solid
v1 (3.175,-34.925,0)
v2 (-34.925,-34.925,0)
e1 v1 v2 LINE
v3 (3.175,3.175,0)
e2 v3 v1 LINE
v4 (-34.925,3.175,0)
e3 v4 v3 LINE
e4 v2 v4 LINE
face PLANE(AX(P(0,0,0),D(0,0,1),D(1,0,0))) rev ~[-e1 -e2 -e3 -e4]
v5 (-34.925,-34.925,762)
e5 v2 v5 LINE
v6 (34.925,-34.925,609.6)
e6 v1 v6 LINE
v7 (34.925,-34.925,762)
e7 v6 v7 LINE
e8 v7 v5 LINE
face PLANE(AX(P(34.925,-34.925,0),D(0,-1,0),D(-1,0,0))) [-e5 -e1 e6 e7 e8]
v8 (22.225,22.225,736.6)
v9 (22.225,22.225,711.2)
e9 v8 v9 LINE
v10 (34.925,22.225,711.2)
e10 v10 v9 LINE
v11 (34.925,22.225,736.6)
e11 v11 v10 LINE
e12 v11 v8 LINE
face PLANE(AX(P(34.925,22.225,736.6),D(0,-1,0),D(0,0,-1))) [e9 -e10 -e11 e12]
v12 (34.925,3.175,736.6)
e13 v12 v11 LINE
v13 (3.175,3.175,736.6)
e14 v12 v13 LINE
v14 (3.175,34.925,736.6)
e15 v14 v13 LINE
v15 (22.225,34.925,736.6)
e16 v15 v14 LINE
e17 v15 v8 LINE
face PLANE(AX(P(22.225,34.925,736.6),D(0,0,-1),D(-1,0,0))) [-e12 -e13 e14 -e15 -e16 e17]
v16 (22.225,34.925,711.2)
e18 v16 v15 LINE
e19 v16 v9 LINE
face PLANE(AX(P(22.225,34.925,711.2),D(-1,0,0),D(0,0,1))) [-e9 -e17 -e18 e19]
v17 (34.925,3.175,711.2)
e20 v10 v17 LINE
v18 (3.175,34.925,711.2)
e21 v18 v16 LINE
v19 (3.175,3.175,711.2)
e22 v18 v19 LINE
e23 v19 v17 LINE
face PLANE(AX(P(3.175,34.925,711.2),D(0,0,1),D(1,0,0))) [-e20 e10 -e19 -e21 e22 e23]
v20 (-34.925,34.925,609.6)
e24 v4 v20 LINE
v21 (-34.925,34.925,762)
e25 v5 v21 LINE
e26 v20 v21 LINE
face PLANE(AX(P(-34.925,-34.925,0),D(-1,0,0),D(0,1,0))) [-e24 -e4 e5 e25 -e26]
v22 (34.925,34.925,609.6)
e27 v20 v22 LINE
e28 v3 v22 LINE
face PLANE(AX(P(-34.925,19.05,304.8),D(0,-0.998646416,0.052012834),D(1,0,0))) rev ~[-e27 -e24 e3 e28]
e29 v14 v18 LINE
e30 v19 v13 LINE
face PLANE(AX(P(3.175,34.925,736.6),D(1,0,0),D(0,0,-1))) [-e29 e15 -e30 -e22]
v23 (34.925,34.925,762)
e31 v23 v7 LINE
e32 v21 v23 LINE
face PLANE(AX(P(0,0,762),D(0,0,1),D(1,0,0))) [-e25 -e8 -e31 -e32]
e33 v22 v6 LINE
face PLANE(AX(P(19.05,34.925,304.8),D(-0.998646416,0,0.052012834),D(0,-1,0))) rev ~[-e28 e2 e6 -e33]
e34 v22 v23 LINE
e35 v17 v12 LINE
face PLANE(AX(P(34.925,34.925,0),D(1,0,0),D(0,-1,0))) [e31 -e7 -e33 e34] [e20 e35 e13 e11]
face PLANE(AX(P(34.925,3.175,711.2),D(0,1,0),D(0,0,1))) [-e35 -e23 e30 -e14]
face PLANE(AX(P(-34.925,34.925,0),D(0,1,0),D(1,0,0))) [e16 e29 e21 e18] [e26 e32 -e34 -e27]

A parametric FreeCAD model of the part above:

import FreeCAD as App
import Part
import Sketcher
from FreeCAD import Vector
Q = App.Units.Quantity


def edges_at(feature, points):
    """Names of the edges that pass closest to the given points."""
    edges = feature.Shape.Edges
    near = lambda p: min(range(len(edges)), key=lambda i: edges[i].distToShape(Part.Vertex(*p))[0])
    return sorted({f"Edge{near(p) + 1}" for p in points})

doc = App.newDocument("Part")
params = doc.addObject("Spreadsheet::Sheet", "Params")
for row, (alias, value) in enumerate([
    ("sketch1_width", "2.75 in"),
    ("pad1_length", "30 in"),
    ("chamfer_size", "1.25 in"),
    ("chamfer_size2", "24 in"),
    ("sketch2_height", "1 in"),
    ("sketch2_width", "0.75 in"),
    ("pocket1_length", "1.25 in"),
    ("sketch3_height", "1 in"),
    ("sketch3_width", "0.75 in"),
    ("pocket2_length", "1.25 in"),
], start=1):
    params.set(f"A{row}", alias)
    params.set(f"B{row}", "=" + value)
    params.setAlias(f"B{row}", alias)

body = doc.addObject("PartDesign::Body", "Body")

# Sketch on XY plane
sketch1 = body.newObject("Sketcher::SketchObject", "Sketch")
sketch1.AttachmentSupport = (doc.getObject("XY_Plane"), [""])
sketch1.MapMode = "FlatFace"
sketch1.addGeometry([
    Part.LineSegment(Vector(34.925, 34.925, 0), Vector(-34.925, 34.925, 0)),
    Part.LineSegment(Vector(-34.925, 34.925, 0), Vector(-34.925, -34.925, 0)),
    Part.LineSegment(Vector(-34.925, -34.925, 0), Vector(34.925, -34.925, 0)),
    Part.LineSegment(Vector(34.925, -34.925, 0), Vector(34.925, 34.925, 0)),
], False)
sketch1.addConstraint([
    Sketcher.Constraint("Coincident", 0, 2, 1, 1),
    Sketcher.Constraint("Coincident", 1, 2, 2, 1),
    Sketcher.Constraint("Coincident", 2, 2, 3, 1),
    Sketcher.Constraint("Coincident", 3, 2, 0, 1),
    Sketcher.Constraint("Horizontal", 0),
    Sketcher.Constraint("Vertical", 1),
    Sketcher.Constraint("Horizontal", 2),
    Sketcher.Constraint("Vertical", 3),
    Sketcher.Constraint("Symmetric", 0, 2, 2, 2, -1, 1),
    Sketcher.Constraint("Equal", 2, 1),
    Sketcher.Constraint("DistanceX", 0, 2, 0, 1, Q("2.75 in")),
])
sketch1.setExpression("Constraints[10]", "Params.sketch1_width")
pad1 = body.newObject("PartDesign::Pad", "Pad")
pad1.Profile = sketch1
pad1.setExpression("Length", "Params.pad1_length")
doc.recompute()

chamfer = body.newObject("PartDesign::Chamfer", "Chamfer")
chamfer.Base = (pad1, edges_at(pad1, [(34.925, 0, 0), (0, 34.925, 0)]))
chamfer.ChamferType = "Two distances"
chamfer.setExpression("Size", "Params.chamfer_size")
chamfer.setExpression("Size2", "Params.chamfer_size2")
chamfer.FlipDirection = True

# Sketch on YZ plane
sketch2 = body.newObject("Sketcher::SketchObject", "Sketch001")
sketch2.AttachmentSupport = (doc.getObject("YZ_Plane"), [""])
sketch2.MapMode = "FlatFace"
sketch2.AttachmentOffset = App.Placement(Vector(0, 0, 1.375 * 25.4), App.Rotation())
sketch2.addGeometry([
    Part.LineSegment(Vector(22.225, 736.6, 0), Vector(3.175, 736.6, 0)),
    Part.LineSegment(Vector(3.175, 736.6, 0), Vector(3.175, 711.2, 0)),
    Part.LineSegment(Vector(3.175, 711.2, 0), Vector(22.225, 711.2, 0)),
    Part.LineSegment(Vector(22.225, 711.2, 0), Vector(22.225, 736.6, 0)),
], False)
sketch2.addConstraint([
    Sketcher.Constraint("Coincident", 0, 2, 1, 1),
    Sketcher.Constraint("Coincident", 1, 2, 2, 1),
    Sketcher.Constraint("Coincident", 2, 2, 3, 1),
    Sketcher.Constraint("Coincident", 3, 2, 0, 1),
    Sketcher.Constraint("Horizontal", 0),
    Sketcher.Constraint("Vertical", 1),
    Sketcher.Constraint("Horizontal", 2),
    Sketcher.Constraint("Vertical", 3),
    Sketcher.Constraint("DistanceY", 1, 2, 1, 1, Q("1 in")),
    Sketcher.Constraint("DistanceX", 0, 2, 0, 1, Q("0.75 in")),
    Sketcher.Constraint("DistanceY", -1, 1, 0, 2, Q("29 in")),
    Sketcher.Constraint("DistanceX", -1, 1, 0, 2, Q("0.125 in")),
])
sketch2.setExpression("Constraints[8]", "Params.sketch2_height")
sketch2.setExpression("Constraints[9]", "Params.sketch2_width")
pocket1 = body.newObject("PartDesign::Pocket", "Pocket")
pocket1.Profile = sketch2
pocket1.setExpression("Length", "Params.pocket1_length")

# Sketch on XZ plane
sketch3 = body.newObject("Sketcher::SketchObject", "Sketch002")
sketch3.AttachmentSupport = (doc.getObject("XZ_Plane"), [""])
sketch3.MapMode = "FlatFace"
sketch3.AttachmentOffset = App.Placement(Vector(0, 0, -1.375 * 25.4), App.Rotation())
sketch3.addGeometry([
    Part.LineSegment(Vector(3.175, 736.6, 0), Vector(22.225, 736.6, 0)),
    Part.LineSegment(Vector(22.225, 736.6, 0), Vector(22.225, 711.2, 0)),
    Part.LineSegment(Vector(22.225, 711.2, 0), Vector(3.175, 711.2, 0)),
    Part.LineSegment(Vector(3.175, 711.2, 0), Vector(3.175, 736.6, 0)),
], False)
sketch3.addConstraint([
    Sketcher.Constraint("Coincident", 0, 2, 1, 1),
    Sketcher.Constraint("Coincident", 1, 2, 2, 1),
    Sketcher.Constraint("Coincident", 2, 2, 3, 1),
    Sketcher.Constraint("Coincident", 3, 2, 0, 1),
    Sketcher.Constraint("Horizontal", 0),
    Sketcher.Constraint("Vertical", 1),
    Sketcher.Constraint("Horizontal", 2),
    Sketcher.Constraint("Vertical", 3),
    Sketcher.Constraint("DistanceY", 1, 2, 1, 1, Q("1 in")),
    Sketcher.Constraint("DistanceX", 0, 1, 0, 2, Q("0.75 in")),
    Sketcher.Constraint("DistanceY", -1, 1, 0, 2, Q("29 in")),
    Sketcher.Constraint("DistanceX", -1, 1, 0, 2, Q("0.875 in")),
])
sketch3.setExpression("Constraints[8]", "Params.sketch3_height")
sketch3.setExpression("Constraints[9]", "Params.sketch3_width")
pocket2 = body.newObject("PartDesign::Pocket", "Pocket001")
pocket2.Profile = sketch3
pocket2.setExpression("Length", "Params.pocket2_length")
pocket2.Reversed = True

doc.recompute()
